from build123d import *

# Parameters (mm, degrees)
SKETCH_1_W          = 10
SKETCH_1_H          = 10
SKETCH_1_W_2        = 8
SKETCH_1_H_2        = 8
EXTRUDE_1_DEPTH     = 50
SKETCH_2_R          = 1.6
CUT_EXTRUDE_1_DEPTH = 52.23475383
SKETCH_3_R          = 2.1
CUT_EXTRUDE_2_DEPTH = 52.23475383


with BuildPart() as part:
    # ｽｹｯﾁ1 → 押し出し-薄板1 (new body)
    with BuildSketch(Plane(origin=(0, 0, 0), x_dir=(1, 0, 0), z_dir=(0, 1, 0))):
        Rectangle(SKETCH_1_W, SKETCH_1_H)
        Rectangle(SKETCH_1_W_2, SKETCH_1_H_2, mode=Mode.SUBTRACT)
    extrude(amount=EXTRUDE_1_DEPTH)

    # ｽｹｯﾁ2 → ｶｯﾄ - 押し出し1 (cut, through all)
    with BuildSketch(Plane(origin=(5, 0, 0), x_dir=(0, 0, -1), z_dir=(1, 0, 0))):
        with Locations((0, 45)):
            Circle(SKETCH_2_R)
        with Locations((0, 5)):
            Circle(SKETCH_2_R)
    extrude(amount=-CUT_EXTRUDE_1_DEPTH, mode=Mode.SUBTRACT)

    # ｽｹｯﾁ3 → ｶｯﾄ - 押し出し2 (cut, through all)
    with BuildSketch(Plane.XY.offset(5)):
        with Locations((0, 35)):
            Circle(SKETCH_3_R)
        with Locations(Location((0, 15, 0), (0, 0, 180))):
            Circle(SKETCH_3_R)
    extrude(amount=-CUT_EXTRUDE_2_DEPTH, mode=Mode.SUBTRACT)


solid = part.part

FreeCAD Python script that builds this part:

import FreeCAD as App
import Part
import Sketcher
Q = App.Units.Quantity

doc = App.newDocument("Part")
body = doc.addObject("PartDesign::Body", "Body")

# Sketch on XZ plane
sketch1 = body.newObject("Sketcher::SketchObject", "Sketch")
sketch1.AttachmentSupport = (doc.getObject("XZ_Plane"), [""])
sketch1.MapMode = "FlatFace"
sketch1.addGeometry([
    Part.LineSegment(App.Vector(-5, -5, 0), App.Vector(-5, 5, 0)),  # 0
    Part.LineSegment(App.Vector(-5, 5, 0), App.Vector(5, 5, 0)),  # 1
    Part.LineSegment(App.Vector(5, 5, 0), App.Vector(5, -5, 0)),  # 2
    Part.LineSegment(App.Vector(5, -5, 0), App.Vector(-5, -5, 0)),  # 3
    Part.LineSegment(App.Vector(4, 4, 0), App.Vector(-4, 4, 0)),  # 4
    Part.LineSegment(App.Vector(-4, 4, 0), App.Vector(-4, -4, 0)),  # 5
    Part.LineSegment(App.Vector(-4, -4, 0), App.Vector(4, -4, 0)),  # 6
    Part.LineSegment(App.Vector(4, -4, 0), App.Vector(4, 4, 0)),  # 7
], False)
sketch1.addConstraint([
    Sketcher.Constraint("Coincident", 0, 2, 1, 1),
    Sketcher.Constraint("Coincident", 1, 2, 2, 1),
    Sketcher.Constraint("Coincident", 2, 2, 3, 1),
    Sketcher.Constraint("Coincident", 3, 2, 0, 1),
    Sketcher.Constraint("Coincident", 4, 2, 5, 1),
    Sketcher.Constraint("Coincident", 5, 2, 6, 1),
    Sketcher.Constraint("Coincident", 6, 2, 7, 1),
    Sketcher.Constraint("Coincident", 7, 2, 4, 1),
    Sketcher.Constraint("Vertical", 0),
    Sketcher.Constraint("Horizontal", 1),
    Sketcher.Constraint("Vertical", 2),
    Sketcher.Constraint("Horizontal", 3),
    Sketcher.Constraint("Horizontal", 4),
    Sketcher.Constraint("Vertical", 5),
    Sketcher.Constraint("Horizontal", 6),
    Sketcher.Constraint("Vertical", 7),
    Sketcher.Constraint("Symmetric", 0, 2, 2, 2, -1, 1),
    Sketcher.Constraint("Symmetric", 4, 2, 6, 2, -1, 1),
    Sketcher.Constraint("Equal", 3, 0),
    Sketcher.Constraint("Equal", 6, 5),
    Sketcher.Constraint("DistanceX", 1, 1, 1, 2, Q("10 mm")),
    Sketcher.Constraint("DistanceX", 4, 2, 4, 1, Q("8 mm")),
])
pad1 = body.newObject("PartDesign::Pad", "Pad")
pad1.Profile = sketch1
pad1.Length = 50
pad1.Reversed = True

# Sketch on YZ plane
sketch2 = body.newObject("Sketcher::SketchObject", "Sketch001")
sketch2.AttachmentSupport = (doc.getObject("YZ_Plane"), [""])
sketch2.MapMode = "FlatFace"
sketch2.AttachmentOffset = App.Placement(App.Vector(0, 0, 5), App.Rotation())
sketch2.addGeometry([
    Part.Circle(App.Vector(45, 0, 0), App.Vector(0, 0, 1), 1.6),
    Part.Circle(App.Vector(5, 0, 0), App.Vector(0, 0, 1), 1.6),
], False)
sketch2.addConstraint([
    Sketcher.Constraint("Equal", 0, 1),
    Sketcher.Constraint("PointOnObject", 0, 3, -1),
    Sketcher.Constraint("PointOnObject", 1, 3, -1),
    Sketcher.Constraint("Diameter", 0, Q("3.2 mm")),
    Sketcher.Constraint("DistanceX", -1, 1, 0, 3, Q("45 mm")),
    Sketcher.Constraint("DistanceX", -1, 1, 1, 3, Q("5 mm")),
])
pocket1 = body.newObject("PartDesign::Pocket", "Pocket")
pocket1.Profile = sketch2
pocket1.Type = "ThroughAll"

# Sketch on XY plane
sketch3 = body.newObject("Sketcher::SketchObject", "Sketch002")
sketch3.AttachmentSupport = (doc.getObject("XY_Plane"), [""])
sketch3.MapMode = "FlatFace"
sketch3.AttachmentOffset = App.Placement(App.Vector(0, 0, 5), App.Rotation())
sketch3.addGeometry([
    Part.Circle(App.Vector(0, 35, 0), App.Vector(0, 0, 1), 2.1),
    Part.Circle(App.Vector(0, 15, 0), App.Vector(0, 0, 1), 2.1),
], False)
sketch3.addConstraint([
    Sketcher.Constraint("Equal", 0, 1),
    Sketcher.Constraint("PointOnObject", 0, 3, -2),
    Sketcher.Constraint("PointOnObject", 1, 3, -2),
    Sketcher.Constraint("Diameter", 0, Q("4.2 mm")),
    Sketcher.Constraint("DistanceY", -1, 1, 0, 3, Q("35 mm")),
    Sketcher.Constraint("DistanceY", -1, 1, 1, 3, Q("15 mm")),
])
pocket2 = body.newObject("PartDesign::Pocket", "Pocket001")
pocket2.Profile = sketch3
pocket2.Type = "ThroughAll"

doc.recompute()
